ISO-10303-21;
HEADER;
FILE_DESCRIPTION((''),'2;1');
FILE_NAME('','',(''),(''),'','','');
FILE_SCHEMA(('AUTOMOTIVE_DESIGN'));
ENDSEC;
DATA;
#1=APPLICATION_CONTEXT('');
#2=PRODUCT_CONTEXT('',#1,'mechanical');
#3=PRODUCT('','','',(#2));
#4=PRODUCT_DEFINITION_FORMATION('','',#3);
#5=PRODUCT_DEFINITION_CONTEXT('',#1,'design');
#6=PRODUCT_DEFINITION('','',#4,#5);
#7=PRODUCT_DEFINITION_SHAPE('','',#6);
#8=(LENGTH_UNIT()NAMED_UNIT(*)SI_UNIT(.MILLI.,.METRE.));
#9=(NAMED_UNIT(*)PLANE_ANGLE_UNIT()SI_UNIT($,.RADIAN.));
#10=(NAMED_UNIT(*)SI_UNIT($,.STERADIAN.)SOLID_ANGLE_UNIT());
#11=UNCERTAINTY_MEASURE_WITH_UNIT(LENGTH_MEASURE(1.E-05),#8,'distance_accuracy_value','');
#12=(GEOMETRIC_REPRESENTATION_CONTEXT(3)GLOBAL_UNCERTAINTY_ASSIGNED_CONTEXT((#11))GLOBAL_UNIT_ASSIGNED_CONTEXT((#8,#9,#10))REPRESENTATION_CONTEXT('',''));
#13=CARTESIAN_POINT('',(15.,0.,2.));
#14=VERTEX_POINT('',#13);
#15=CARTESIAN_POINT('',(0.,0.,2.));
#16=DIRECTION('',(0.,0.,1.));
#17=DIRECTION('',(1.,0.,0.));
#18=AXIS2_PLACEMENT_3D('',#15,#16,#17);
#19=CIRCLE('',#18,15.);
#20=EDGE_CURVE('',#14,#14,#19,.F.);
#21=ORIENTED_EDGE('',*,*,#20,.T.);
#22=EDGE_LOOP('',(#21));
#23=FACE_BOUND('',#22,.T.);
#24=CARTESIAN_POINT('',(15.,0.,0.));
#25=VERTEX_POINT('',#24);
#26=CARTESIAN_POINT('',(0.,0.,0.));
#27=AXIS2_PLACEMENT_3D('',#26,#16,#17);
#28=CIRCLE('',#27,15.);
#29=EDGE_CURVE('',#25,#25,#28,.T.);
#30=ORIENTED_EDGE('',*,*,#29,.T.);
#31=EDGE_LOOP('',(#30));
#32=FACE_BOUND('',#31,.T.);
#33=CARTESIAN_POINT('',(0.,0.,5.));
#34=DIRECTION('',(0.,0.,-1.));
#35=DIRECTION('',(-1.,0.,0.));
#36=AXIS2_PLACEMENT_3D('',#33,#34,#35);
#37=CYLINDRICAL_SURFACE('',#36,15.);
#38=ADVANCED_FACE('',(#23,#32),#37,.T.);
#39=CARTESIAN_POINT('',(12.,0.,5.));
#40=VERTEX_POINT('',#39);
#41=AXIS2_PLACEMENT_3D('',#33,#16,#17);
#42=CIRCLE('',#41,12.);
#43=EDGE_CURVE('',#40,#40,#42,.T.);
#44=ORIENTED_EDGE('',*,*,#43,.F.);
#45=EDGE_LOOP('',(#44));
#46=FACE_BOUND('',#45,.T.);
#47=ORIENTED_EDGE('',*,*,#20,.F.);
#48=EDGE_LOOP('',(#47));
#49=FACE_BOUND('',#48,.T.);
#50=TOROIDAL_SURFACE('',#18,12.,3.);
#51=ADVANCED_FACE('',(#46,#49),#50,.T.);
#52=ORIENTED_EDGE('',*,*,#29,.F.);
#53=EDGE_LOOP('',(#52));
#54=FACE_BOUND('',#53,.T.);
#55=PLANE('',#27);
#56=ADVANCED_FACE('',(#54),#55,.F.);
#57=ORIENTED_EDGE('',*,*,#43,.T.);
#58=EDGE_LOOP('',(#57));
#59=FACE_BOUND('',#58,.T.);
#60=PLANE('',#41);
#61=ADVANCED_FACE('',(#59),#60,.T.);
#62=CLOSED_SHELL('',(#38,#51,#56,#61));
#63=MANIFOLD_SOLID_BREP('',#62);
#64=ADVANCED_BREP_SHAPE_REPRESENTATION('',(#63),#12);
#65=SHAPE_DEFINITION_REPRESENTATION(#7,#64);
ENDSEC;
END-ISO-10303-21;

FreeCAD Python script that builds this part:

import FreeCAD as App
import Part
import Sketcher
from FreeCAD import Vector
Q = App.Units.Quantity


def edges_at(feature, points):
    """Names of the edges that pass closest to the given points."""
    edges = feature.Shape.Edges
    near = lambda p: min(range(len(edges)), key=lambda i: edges[i].distToShape(Part.Vertex(*p))[0])
    return sorted({f"Edge{near(p) + 1}" for p in points})

doc = App.newDocument("Part")
body = doc.addObject("PartDesign::Body", "Body")

# Sketch on XY plane
sketch1 = body.newObject("Sketcher::SketchObject", "Sketch")
sketch1.AttachmentSupport = (doc.getObject("XY_Plane"), [""])
sketch1.MapMode = "FlatFace"
sketch1.addGeometry(Part.Circle(Vector(0, 0, 0), Vector(0, 0, 1), 15), False)
sketch1.addConstraint([
    Sketcher.Constraint("Coincident", 0, 3, -1, 1),
    Sketcher.Constraint("Diameter", 0, Q("30 mm")),
])
pad1 = body.newObject("PartDesign::Pad", "Pad")
pad1.Profile = sketch1
pad1.Length = 5
doc.recompute()

fillet = body.newObject("PartDesign::Fillet", "Fillet")
fillet.Base = (pad1, edges_at(pad1, [(-15, 0, 5)]))
fillet.Radius = 3

doc.recompute()
